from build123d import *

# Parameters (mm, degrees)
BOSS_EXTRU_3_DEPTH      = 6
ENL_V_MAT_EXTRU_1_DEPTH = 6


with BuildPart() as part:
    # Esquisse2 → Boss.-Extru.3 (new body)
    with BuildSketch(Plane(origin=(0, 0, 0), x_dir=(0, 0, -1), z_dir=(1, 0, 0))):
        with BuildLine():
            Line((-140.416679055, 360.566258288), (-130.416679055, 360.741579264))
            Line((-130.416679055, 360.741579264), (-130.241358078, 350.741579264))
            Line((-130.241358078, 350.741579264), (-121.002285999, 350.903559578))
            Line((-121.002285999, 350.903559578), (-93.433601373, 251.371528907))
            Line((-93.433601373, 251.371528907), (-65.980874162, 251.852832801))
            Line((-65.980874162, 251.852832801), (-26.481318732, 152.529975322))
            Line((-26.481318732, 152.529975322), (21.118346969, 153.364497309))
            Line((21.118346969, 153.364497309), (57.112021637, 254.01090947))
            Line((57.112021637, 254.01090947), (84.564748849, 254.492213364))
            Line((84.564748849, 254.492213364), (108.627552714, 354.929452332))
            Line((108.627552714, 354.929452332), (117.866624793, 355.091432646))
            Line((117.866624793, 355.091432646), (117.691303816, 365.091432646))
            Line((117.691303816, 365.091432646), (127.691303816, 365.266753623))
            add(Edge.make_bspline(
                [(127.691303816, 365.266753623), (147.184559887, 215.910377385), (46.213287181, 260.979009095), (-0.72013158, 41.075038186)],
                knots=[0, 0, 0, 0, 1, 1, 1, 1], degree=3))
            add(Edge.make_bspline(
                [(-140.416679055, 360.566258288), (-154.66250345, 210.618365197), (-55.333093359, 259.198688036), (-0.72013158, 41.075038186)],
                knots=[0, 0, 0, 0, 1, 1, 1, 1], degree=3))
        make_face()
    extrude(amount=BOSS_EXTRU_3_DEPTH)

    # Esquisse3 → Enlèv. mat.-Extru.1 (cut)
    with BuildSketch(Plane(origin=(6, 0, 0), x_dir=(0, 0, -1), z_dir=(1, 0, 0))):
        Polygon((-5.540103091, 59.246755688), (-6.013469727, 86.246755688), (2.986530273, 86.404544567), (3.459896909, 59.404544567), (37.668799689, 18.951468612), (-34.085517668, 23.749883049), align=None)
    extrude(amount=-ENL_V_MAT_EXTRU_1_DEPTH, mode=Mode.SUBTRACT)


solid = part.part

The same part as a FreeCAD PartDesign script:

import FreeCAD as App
import Part
import Sketcher

V = App.Vector
Q = App.Units.Quantity


def add_polygon(sketch, points):
    """Adds a closed chain of lines whose ends are joined by coincident constraints."""
    first, n = sketch.GeometryCount, len(points)
    for a, b in zip(points, points[1:] + points[:1]):
        sketch.addGeometry(Part.LineSegment(App.Vector(*a, 0), App.Vector(*b, 0)), False)
    for i in range(n):
        sketch.addConstraint(Sketcher.Constraint("Coincident", first + i, 2, first + (i + 1) % n, 1))

doc = App.newDocument("Part")
params = doc.addObject("Spreadsheet::Sheet", "Params")
for row, (alias, value) in enumerate([
    ("pad1_length", "6 mm"),
    ("pocket1_length", "6 mm"),
], start=1):
    params.set(f"A{row}", alias)
    params.set(f"B{row}", "=" + value)
    params.setAlias(f"B{row}", alias)

body = doc.addObject("PartDesign::Body", "Body")

sketch1 = body.newObject("Sketcher::SketchObject", "Sketch")
sketch1.AttachmentSupport = (doc.getObject("YZ_Plane"), [""])
sketch1.MapMode = "FlatFace"
sketch1.addGeometry(Part.LineSegment(V(360.741579, 130.416679, 0), V(360.566258, 140.416679, 0)), False)
sketch1.addGeometry(Part.BSplineCurve([V(360.566258, 140.416679, 0), V(210.618365, 154.662503, 0), V(259.198688, 55.333093, 0), V(41.075038, 0.720132, 0)], [4, 4], [0, 1], False, 3, [1, 1, 1, 1], False), False)
sketch1.addGeometry(Part.BSplineCurve([V(365.266754, -127.691304, 0), V(215.910377, -147.18456, 0), V(260.979009, -46.213287, 0), V(41.075038, 0.720132, 0)], [4, 4], [0, 1], False, 3, [1, 1, 1, 1], False), False)
sketch1.addGeometry(Part.LineSegment(V(365.266754, -127.691304, 0), V(365.091433, -117.691304, 0)), False)
sketch1.addGeometry(Part.LineSegment(V(365.091433, -117.691304, 0), V(355.091433, -117.866625, 0)), False)
sketch1.addGeometry(Part.LineSegment(V(355.091433, -117.866625, 0), V(354.929452, -108.627553, 0)), False)
sketch1.addGeometry(Part.LineSegment(V(354.929452, -108.627553, 0), V(254.492213, -84.564749, 0)), False)
sketch1.addGeometry(Part.LineSegment(V(254.492213, -84.564749, 0), V(254.010909, -57.112022, 0)), False)
sketch1.addGeometry(Part.LineSegment(V(254.010909, -57.112022, 0), V(153.364497, -21.118347, 0)), False)
sketch1.addGeometry(Part.LineSegment(V(153.364497, -21.118347, 0), V(152.529975, 26.481319, 0)), False)
sketch1.addGeometry(Part.LineSegment(V(152.529975, 26.481319, 0), V(251.852833, 65.980874, 0)), False)
sketch1.addGeometry(Part.LineSegment(V(251.852833, 65.980874, 0), V(251.371529, 93.433601, 0)), False)
sketch1.addGeometry(Part.LineSegment(V(251.371529, 93.433601, 0), V(350.90356, 121.002286, 0)), False)
sketch1.addGeometry(Part.LineSegment(V(350.90356, 121.002286, 0), V(350.741579, 130.241358, 0)), False)
sketch1.addGeometry(Part.LineSegment(V(350.741579, 130.241358, 0), V(360.741579, 130.416679, 0)), False)
sketch1.addConstraint(Sketcher.Constraint("Block", 1))
sketch1.addConstraint(Sketcher.Constraint("Block", 2))
sketch1.addConstraint(Sketcher.Constraint("Coincident", 0, 2, 1, 1))
sketch1.addConstraint(Sketcher.Constraint("Coincident", 2, 1, 3, 1))
sketch1.addConstraint(Sketcher.Constraint("Coincident", 3, 2, 4, 1))
sketch1.addConstraint(Sketcher.Constraint("Coincident", 4, 2, 5, 1))
sketch1.addConstraint(Sketcher.Constraint("Coincident", 5, 2, 6, 1))
sketch1.addConstraint(Sketcher.Constraint("Coincident", 6, 2, 7, 1))
sketch1.addConstraint(Sketcher.Constraint("Coincident", 7, 2, 8, 1))
sketch1.addConstraint(Sketcher.Constraint("Coincident", 8, 2, 9, 1))
sketch1.addConstraint(Sketcher.Constraint("Coincident", 9, 2, 10, 1))
sketch1.addConstraint(Sketcher.Constraint("Coincident", 10, 2, 11, 1))
sketch1.addConstraint(Sketcher.Constraint("Coincident", 11, 2, 12, 1))
sketch1.addConstraint(Sketcher.Constraint("Coincident", 12, 2, 13, 1))
sketch1.addConstraint(Sketcher.Constraint("Coincident", 13, 2, 14, 1))
sketch1.addConstraint(Sketcher.Constraint("Coincident", 14, 2, 0, 1))
sketch1.addConstraint(Sketcher.Constraint("DistanceX", 4, 2, 3, 2, Q("10 mm")))
sketch1.addConstraint(Sketcher.Constraint("DistanceY", 14, 2, 0, 2, Q("10 mm")))
sketch1.addConstraint(Sketcher.Constraint("DistanceX", 13, 2, 14, 2, Q("10 mm")))
sketch1.addConstraint(Sketcher.Constraint("DistanceY", -1, 1, 11, 2, Q("93.433601 mm")))
sketch1.addConstraint(Sketcher.Constraint("DistanceY", 7, 2, 0, 2, Q("197.528701 mm")))
sketch1.addConstraint(Sketcher.Constraint("DistanceY", 6, 2, 8, 2, Q("63.446402 mm")))
sketch1.addConstraint(Sketcher.Constraint("DistanceX", 12, 2, 0, 2, Q("9.662699 mm")))
sketch1.addConstraint(Sketcher.Constraint("Distance", 5, Q("9.240492 mm")))
sketch1.addConstraint(Sketcher.Constraint("Distance", 6, Q("103.279512 mm")))
sketch1.addConstraint(Sketcher.Constraint("Distance", 9, Q("47.606981 mm")))
sketch1.addConstraint(Sketcher.Constraint("Distance", 12, Q("103.279512 mm")))
sketch1.addConstraint(Sketcher.Constraint("Distance", 13, Q("9.240492 mm")))
sketch1.addConstraint(Sketcher.Constraint("DistanceY", 6, 2, -1, 1, Q("84.564749 mm")))
sketch1.addConstraint(Sketcher.Constraint("DistanceX", -1, 1, 7, 2, Q("254.010909 mm")))
sketch1.addConstraint(Sketcher.Constraint("DistanceY", -1, 1, 9, 2, Q("26.481319 mm")))
sketch1.addConstraint(Sketcher.Constraint("DistanceX", -1, 1, 11, 2, Q("251.371529 mm")))
sketch1.addConstraint(Sketcher.Constraint("DistanceX", -1, 1, 13, 2, Q("350.741579 mm")))
sketch1.addConstraint(Sketcher.Constraint("DistanceY", 4, 2, 3, 2, Q("0.175321 mm")))
sketch1.addConstraint(Sketcher.Constraint("DistanceX", 5, 2, 4, 2, Q("0.16198 mm")))
sketch1.addConstraint(Sketcher.Constraint("DistanceY", 5, 2, 0, 2, Q("249.044232 mm")))
sketch1.addConstraint(Sketcher.Constraint("DistanceX", 9, 2, 6, 2, Q("101.962238 mm")))
sketch1.addConstraint(Sketcher.Constraint("DistanceY", 8, 2, 10, 2, Q("87.099221 mm")))
sketch1.addConstraint(Sketcher.Constraint("DistanceX", 10, 2, 6, 2, Q("2.639381 mm")))
sketch1.addConstraint(Sketcher.Constraint("DistanceX", 8, 2, 11, 2, Q("98.007032 mm")))
pad1 = body.newObject("PartDesign::Pad", "Pad")
pad1.Profile = sketch1
pad1.setExpression("Length", "Params.pad1_length")

sketch2 = body.newObject("Sketcher::SketchObject", "Sketch001")
sketch2.AttachmentSupport = (doc.getObject("YZ_Plane"), [""])
sketch2.MapMode = "FlatFace"
sketch2.AttachmentOffset = App.Placement(V(0, 0, 6), App.Rotation())
add_polygon(sketch2, [(86.246756, 6.01347), (59.246756, 5.540103), (23.749883, 34.085518), (18.951469, -37.6688), (59.404545, -3.459897), (86.404545, -2.98653)])
sketch2.addConstraint(Sketcher.Constraint("Parallel", 0, 4))
sketch2.addConstraint(Sketcher.Constraint("Perpendicular", 4, 5))
sketch2.addConstraint(Sketcher.Constraint("Equal", 0, 4))
sketch2.addConstraint(Sketcher.Constraint("DistanceY", 3, 2, 0, 2, Q("9 mm")))
sketch2.addConstraint(Sketcher.Constraint("DistanceX", 3, 2, 4, 2, Q("27 mm")))
sketch2.addConstraint(Sketcher.Constraint("Distance", 3, Q("52.978301 mm")))
sketch2.addConstraint(Sketcher.Constraint("DistanceY", 2, 2, -1, 1, Q("37.6688 mm")))
sketch2.addConstraint(Sketcher.Constraint("Distance", 0, Q("27.004149 mm")))
sketch2.addConstraint(Sketcher.Constraint("Distance", 2, Q("71.91458 mm")))
sketch2.addConstraint(Sketcher.Constraint("DistanceX", -1, 1, 2, 2, Q("18.951469 mm")))
sketch2.addConstraint(Sketcher.Constraint("DistanceY", 4, 2, -1, 1, Q("2.98653 mm")))
sketch2.addConstraint(Sketcher.Constraint("DistanceX", 1, 2, 3, 2, Q("35.654662 mm")))
pocket1 = body.newObject("PartDesign::Pocket", "Pocket")
pocket1.Profile = sketch2
pocket1.setExpression("Length", "Params.pocket1_length")

doc.recompute()
